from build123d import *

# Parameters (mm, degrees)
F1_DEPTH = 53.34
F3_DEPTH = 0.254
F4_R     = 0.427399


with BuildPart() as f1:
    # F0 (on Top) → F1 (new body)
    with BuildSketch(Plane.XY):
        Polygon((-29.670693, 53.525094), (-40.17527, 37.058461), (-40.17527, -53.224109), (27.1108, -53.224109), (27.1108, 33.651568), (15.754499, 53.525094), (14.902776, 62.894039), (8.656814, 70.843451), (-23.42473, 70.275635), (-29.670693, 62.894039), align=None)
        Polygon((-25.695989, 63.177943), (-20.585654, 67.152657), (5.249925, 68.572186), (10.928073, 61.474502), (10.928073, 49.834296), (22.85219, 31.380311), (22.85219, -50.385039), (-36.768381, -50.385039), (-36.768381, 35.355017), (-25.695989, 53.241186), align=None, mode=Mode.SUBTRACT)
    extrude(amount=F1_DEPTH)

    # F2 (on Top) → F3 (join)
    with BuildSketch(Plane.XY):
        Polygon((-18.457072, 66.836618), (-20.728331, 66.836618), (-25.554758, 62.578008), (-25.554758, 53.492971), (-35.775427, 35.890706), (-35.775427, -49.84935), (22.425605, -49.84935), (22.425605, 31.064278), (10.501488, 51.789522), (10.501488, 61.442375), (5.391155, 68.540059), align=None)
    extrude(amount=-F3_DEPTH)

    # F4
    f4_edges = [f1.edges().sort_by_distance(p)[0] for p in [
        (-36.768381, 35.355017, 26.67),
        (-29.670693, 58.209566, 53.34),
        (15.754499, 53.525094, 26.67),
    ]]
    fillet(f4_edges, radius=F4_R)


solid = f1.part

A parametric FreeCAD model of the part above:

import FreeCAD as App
import Part
import Sketcher
from FreeCAD import Vector
Q = App.Units.Quantity


def edges_at(feature, points):
    """Names of the edges that pass closest to the given points."""
    edges = feature.Shape.Edges
    near = lambda p: min(range(len(edges)), key=lambda i: edges[i].distToShape(Part.Vertex(*p))[0])
    return sorted({f"Edge{near(p) + 1}" for p in points})

doc = App.newDocument("Part")
body = doc.addObject("PartDesign::Body", "Body")

# Sketch on XY plane
sketch1 = doc.addObject("Sketcher::SketchObject", "Sketch")
body.addObject(sketch1)
sketch1.AttachmentSupport = (doc.XY_Plane, [""])
sketch1.MapMode = "FlatFace"
sketch1.addGeometry(Part.LineSegment(Vector(-29.670693, 53.525094, 0), Vector(-40.17527, 37.058461, 0)), False)
sketch1.addGeometry(Part.LineSegment(Vector(-40.17527, 37.058461, 0), Vector(-40.17527, -53.224109, 0)), False)
sketch1.addGeometry(Part.LineSegment(Vector(-40.17527, -53.224109, 0), Vector(27.1108, -53.224109, 0)), False)
sketch1.addGeometry(Part.LineSegment(Vector(27.1108, -53.224109, 0), Vector(27.1108, 33.651568, 0)), False)
sketch1.addGeometry(Part.LineSegment(Vector(27.1108, 33.651568, 0), Vector(15.754499, 53.525094, 0)), False)
sketch1.addGeometry(Part.LineSegment(Vector(15.754499, 53.525094, 0), Vector(14.902776, 62.894039, 0)), False)
sketch1.addGeometry(Part.LineSegment(Vector(14.902776, 62.894039, 0), Vector(8.656814, 70.843451, 0)), False)
sketch1.addGeometry(Part.LineSegment(Vector(8.656814, 70.843451, 0), Vector(-23.42473, 70.275635, 0)), False)
sketch1.addGeometry(Part.LineSegment(Vector(-23.42473, 70.275635, 0), Vector(-29.670693, 62.894039, 0)), False)
sketch1.addGeometry(Part.LineSegment(Vector(-29.670693, 62.894039, 0), Vector(-29.670693, 53.525094, 0)), False)
sketch1.addGeometry(Part.LineSegment(Vector(-25.695989, 53.241186, 0), Vector(-25.695989, 63.177943, 0)), False)
sketch1.addGeometry(Part.LineSegment(Vector(-25.695989, 63.177943, 0), Vector(-20.585654, 67.152657, 0)), False)
sketch1.addGeometry(Part.LineSegment(Vector(-20.585654, 67.152657, 0), Vector(5.249925, 68.572186, 0)), False)
sketch1.addGeometry(Part.LineSegment(Vector(5.249925, 68.572186, 0), Vector(10.928073, 61.474502, 0)), False)
sketch1.addGeometry(Part.LineSegment(Vector(10.928073, 61.474502, 0), Vector(10.928073, 49.834296, 0)), False)
sketch1.addGeometry(Part.LineSegment(Vector(10.928073, 49.834296, 0), Vector(22.85219, 31.380311, 0)), False)
sketch1.addGeometry(Part.LineSegment(Vector(22.85219, 31.380311, 0), Vector(22.85219, -50.385039, 0)), False)
sketch1.addGeometry(Part.LineSegment(Vector(22.85219, -50.385039, 0), Vector(-36.768381, -50.385039, 0)), False)
sketch1.addGeometry(Part.LineSegment(Vector(-36.768381, -50.385039, 0), Vector(-36.768381, 35.355017, 0)), False)
sketch1.addGeometry(Part.LineSegment(Vector(-36.768381, 35.355017, 0), Vector(-25.695989, 53.241186, 0)), False)
sketch1.addConstraint(Sketcher.Constraint("Coincident", 0, 2, 1, 1))
sketch1.addConstraint(Sketcher.Constraint("Coincident", 1, 2, 2, 1))
sketch1.addConstraint(Sketcher.Constraint("Coincident", 2, 2, 3, 1))
sketch1.addConstraint(Sketcher.Constraint("Coincident", 3, 2, 4, 1))
sketch1.addConstraint(Sketcher.Constraint("Coincident", 4, 2, 5, 1))
sketch1.addConstraint(Sketcher.Constraint("Coincident", 5, 2, 6, 1))
sketch1.addConstraint(Sketcher.Constraint("Coincident", 6, 2, 7, 1))
sketch1.addConstraint(Sketcher.Constraint("Coincident", 7, 2, 8, 1))
sketch1.addConstraint(Sketcher.Constraint("Coincident", 8, 2, 9, 1))
sketch1.addConstraint(Sketcher.Constraint("Coincident", 9, 2, 0, 1))
sketch1.addConstraint(Sketcher.Constraint("Coincident", 10, 2, 11, 1))
sketch1.addConstraint(Sketcher.Constraint("Coincident", 11, 2, 12, 1))
sketch1.addConstraint(Sketcher.Constraint("Coincident", 12, 2, 13, 1))
sketch1.addConstraint(Sketcher.Constraint("Coincident", 13, 2, 14, 1))
sketch1.addConstraint(Sketcher.Constraint("Coincident", 14, 2, 15, 1))
sketch1.addConstraint(Sketcher.Constraint("Coincident", 15, 2, 16, 1))
sketch1.addConstraint(Sketcher.Constraint("Coincident", 16, 2, 17, 1))
sketch1.addConstraint(Sketcher.Constraint("Coincident", 17, 2, 18, 1))
sketch1.addConstraint(Sketcher.Constraint("Coincident", 18, 2, 19, 1))
sketch1.addConstraint(Sketcher.Constraint("Coincident", 19, 2, 10, 1))
sketch1.addConstraint(Sketcher.Constraint("Vertical", 1))
sketch1.addConstraint(Sketcher.Constraint("Horizontal", 2))
sketch1.addConstraint(Sketcher.Constraint("Vertical", 3))
sketch1.addConstraint(Sketcher.Constraint("Vertical", 9))
sketch1.addConstraint(Sketcher.Constraint("Vertical", 10))
sketch1.addConstraint(Sketcher.Constraint("Vertical", 14))
sketch1.addConstraint(Sketcher.Constraint("Vertical", 16))
sketch1.addConstraint(Sketcher.Constraint("Horizontal", 17))
sketch1.addConstraint(Sketcher.Constraint("Vertical", 18))
sketch1.addConstraint(Sketcher.Constraint("DistanceX", 2, 1, 2, 2, Q("67.28607 mm")))
sketch1.addConstraint(Sketcher.Constraint("DistanceX", 17, 2, 17, 1, Q("59.620571 mm")))
sketch1.addConstraint(Sketcher.Constraint("DistanceY", 1, 2, 1, 1, Q("90.28257 mm")))
sketch1.addConstraint(Sketcher.Constraint("DistanceY", 16, 2, 16, 1, Q("81.76535 mm")))
sketch1.addConstraint(Sketcher.Constraint("DistanceX", -1, 1, 2, 2, Q("27.1108 mm")))
sketch1.addConstraint(Sketcher.Constraint("DistanceX", -1, 1, 4, 2, Q("15.754499 mm")))
sketch1.addConstraint(Sketcher.Constraint("DistanceY", 14, 2, 4, 2, Q("3.690798 mm")))
sketch1.addConstraint(Sketcher.Constraint("DistanceY", 17, 2, 0, 2, Q("87.4435 mm")))
sketch1.addConstraint(Sketcher.Constraint("Distance", 5, Q("9.40758 mm")))
sketch1.addConstraint(Sketcher.Constraint("Distance", 6, Q("10.109658 mm")))
sketch1.addConstraint(Sketcher.Constraint("Distance", 7, Q("32.086569 mm")))
sketch1.addConstraint(Sketcher.Constraint("Distance", 8, Q("9.66954 mm")))
sketch1.addConstraint(Sketcher.Constraint("Distance", 13, Q("9.089471 mm")))
sketch1.addConstraint(Sketcher.Constraint("Distance", 15, Q("21.971211 mm")))
sketch1.addConstraint(Sketcher.Constraint("Distance", 19, Q("21.035991 mm")))
sketch1.addConstraint(Sketcher.Constraint("DistanceY", 3, 1, 3, 2, Q("86.875677 mm")))
sketch1.addConstraint(Sketcher.Constraint("DistanceY", 9, 2, 9, 1, Q("9.368945 mm")))
sketch1.addConstraint(Sketcher.Constraint("DistanceY", 10, 1, 10, 2, Q("9.936757 mm")))
sketch1.addConstraint(Sketcher.Constraint("DistanceY", 14, 2, 14, 1, Q("11.640206 mm")))
sketch1.addConstraint(Sketcher.Constraint("DistanceY", 18, 1, 18, 2, Q("85.740056 mm")))
sketch1.addConstraint(Sketcher.Constraint("DistanceY", -1, 1, 0, 2, Q("37.058461 mm")))
sketch1.addConstraint(Sketcher.Constraint("DistanceY", -1, 1, 5, 2, Q("62.894039 mm")))
sketch1.addConstraint(Sketcher.Constraint("DistanceY", -1, 1, 6, 2, Q("70.843451 mm")))
sketch1.addConstraint(Sketcher.Constraint("DistanceX", 7, 2, -1, 1, Q("23.42473 mm")))
sketch1.addConstraint(Sketcher.Constraint("DistanceY", -1, 1, 8, 2, Q("62.894039 mm")))
sketch1.addConstraint(Sketcher.Constraint("DistanceX", 10, 2, -1, 1, Q("25.695989 mm")))
sketch1.addConstraint(Sketcher.Constraint("DistanceX", -1, 1, 15, 2, Q("22.85219 mm")))
sketch1.addConstraint(Sketcher.Constraint("DistanceY", 4, 2, 7, 2, Q("16.750541 mm")))
sketch1.addConstraint(Sketcher.Constraint("DistanceX", 8, 2, 11, 2, Q("9.085039 mm")))
sketch1.addConstraint(Sketcher.Constraint("DistanceY", 8, 2, 11, 2, Q("4.258618 mm")))
sketch1.addConstraint(Sketcher.Constraint("DistanceX", 12, 2, 6, 2, Q("3.406889 mm")))
pad1 = doc.addObject("PartDesign::Pad", "Pad")
body.addObject(pad1)
pad1.Profile = sketch1
pad1.Length = Q("2.1 in")

# Sketch on XY plane
sketch2 = doc.addObject("Sketcher::SketchObject", "Sketch001")
body.addObject(sketch2)
sketch2.AttachmentSupport = (doc.XY_Plane, [""])
sketch2.MapMode = "FlatFace"
sketch2.addGeometry(Part.LineSegment(Vector(-18.457072, 66.836618, 0), Vector(-20.728331, 66.836618, 0)), False)
sketch2.addGeometry(Part.LineSegment(Vector(-20.728331, 66.836618, 0), Vector(-25.554758, 62.578008, 0)), False)
sketch2.addGeometry(Part.LineSegment(Vector(-25.554758, 62.578008, 0), Vector(-25.554758, 53.492971, 0)), False)
sketch2.addGeometry(Part.LineSegment(Vector(-25.554758, 53.492971, 0), Vector(-35.775427, 35.890706, 0)), False)
sketch2.addGeometry(Part.LineSegment(Vector(-35.775427, 35.890706, 0), Vector(-35.775427, -49.84935, 0)), False)
sketch2.addGeometry(Part.LineSegment(Vector(-35.775427, -49.84935, 0), Vector(22.425605, -49.84935, 0)), False)
sketch2.addGeometry(Part.LineSegment(Vector(22.425605, -49.84935, 0), Vector(22.425605, 31.064278, 0)), False)
sketch2.addGeometry(Part.LineSegment(Vector(22.425605, 31.064278, 0), Vector(10.501488, 51.789522, 0)), False)
sketch2.addGeometry(Part.LineSegment(Vector(10.501488, 51.789522, 0), Vector(10.501488, 61.442375, 0)), False)
sketch2.addGeometry(Part.LineSegment(Vector(10.501488, 61.442375, 0), Vector(5.391155, 68.540059, 0)), False)
sketch2.addGeometry(Part.LineSegment(Vector(5.391155, 68.540059, 0), Vector(-18.457072, 66.836618, 0)), False)
sketch2.addConstraint(Sketcher.Constraint("Coincident", 0, 2, 1, 1))
sketch2.addConstraint(Sketcher.Constraint("Coincident", 1, 2, 2, 1))
sketch2.addConstraint(Sketcher.Constraint("Coincident", 2, 2, 3, 1))
sketch2.addConstraint(Sketcher.Constraint("Coincident", 3, 2, 4, 1))
sketch2.addConstraint(Sketcher.Constraint("Coincident", 4, 2, 5, 1))
sketch2.addConstraint(Sketcher.Constraint("Coincident", 5, 2, 6, 1))
sketch2.addConstraint(Sketcher.Constraint("Coincident", 6, 2, 7, 1))
sketch2.addConstraint(Sketcher.Constraint("Coincident", 7, 2, 8, 1))
sketch2.addConstraint(Sketcher.Constraint("Coincident", 8, 2, 9, 1))
sketch2.addConstraint(Sketcher.Constraint("Coincident", 9, 2, 10, 1))
sketch2.addConstraint(Sketcher.Constraint("Coincident", 10, 2, 0, 1))
sketch2.addConstraint(Sketcher.Constraint("Horizontal", 0))
sketch2.addConstraint(Sketcher.Constraint("Vertical", 2))
sketch2.addConstraint(Sketcher.Constraint("Vertical", 4))
sketch2.addConstraint(Sketcher.Constraint("Horizontal", 5))
sketch2.addConstraint(Sketcher.Constraint("Vertical", 6))
sketch2.addConstraint(Sketcher.Constraint("Vertical", 8))
sketch2.addConstraint(Sketcher.Constraint("DistanceX", 0, 2, 0, 1, Q("2.271259 mm")))
sketch2.addConstraint(Sketcher.Constraint("DistanceX", 5, 1, 5, 2, Q("58.201032 mm")))
sketch2.addConstraint(Sketcher.Constraint("DistanceY", 6, 1, 6, 2, Q("80.913628 mm")))
sketch2.addConstraint(Sketcher.Constraint("DistanceY", 3, 2, 1, 2, Q("26.687302 mm")))
sketch2.addConstraint(Sketcher.Constraint("DistanceY", 2, 2, 2, 1, Q("9.085037 mm")))
sketch2.addConstraint(Sketcher.Constraint("DistanceY", 4, 2, 4, 1, Q("85.740056 mm")))
sketch2.addConstraint(Sketcher.Constraint("DistanceY", 8, 1, 8, 2, Q("9.652853 mm")))
sketch2.addConstraint(Sketcher.Constraint("DistanceX", 0, 2, -1, 1, Q("20.728331 mm")))
sketch2.addConstraint(Sketcher.Constraint("DistanceY", -1, 1, 0, 2, Q("66.836618 mm")))
sketch2.addConstraint(Sketcher.Constraint("DistanceY", -1, 1, 2, 2, Q("53.492971 mm")))
sketch2.addConstraint(Sketcher.Constraint("DistanceY", -1, 1, 7, 2, Q("51.789522 mm")))
sketch2.addConstraint(Sketcher.Constraint("DistanceY", -1, 1, 9, 2, Q("68.540059 mm")))
sketch2.addConstraint(Sketcher.Constraint("DistanceX", 3, 2, 2, 2, Q("10.220669 mm")))
sketch2.addConstraint(Sketcher.Constraint("DistanceX", 0, 2, 7, 2, Q("31.229819 mm")))
sketch2.addConstraint(Sketcher.Constraint("Distance", 1, Q("6.436626 mm")))
sketch2.addConstraint(Sketcher.Constraint("Distance", 9, Q("8.746006 mm")))
pad2 = doc.addObject("PartDesign::Pad", "Pad001")
body.addObject(pad2)
pad2.Profile = sketch2
pad2.Length = Q("0.01 in")
pad2.Reversed = True
doc.recompute()

fillet = doc.addObject("PartDesign::Fillet", "Fillet")
body.addObject(fillet)
fillet.Base = (pad2, edges_at(pad2, [(-36.768, 35.355, 26.67), (-29.671, 58.21, 53.34), (15.754, 53.525, 26.67)]))
fillet.Radius = 0.427399

doc.recompute()
